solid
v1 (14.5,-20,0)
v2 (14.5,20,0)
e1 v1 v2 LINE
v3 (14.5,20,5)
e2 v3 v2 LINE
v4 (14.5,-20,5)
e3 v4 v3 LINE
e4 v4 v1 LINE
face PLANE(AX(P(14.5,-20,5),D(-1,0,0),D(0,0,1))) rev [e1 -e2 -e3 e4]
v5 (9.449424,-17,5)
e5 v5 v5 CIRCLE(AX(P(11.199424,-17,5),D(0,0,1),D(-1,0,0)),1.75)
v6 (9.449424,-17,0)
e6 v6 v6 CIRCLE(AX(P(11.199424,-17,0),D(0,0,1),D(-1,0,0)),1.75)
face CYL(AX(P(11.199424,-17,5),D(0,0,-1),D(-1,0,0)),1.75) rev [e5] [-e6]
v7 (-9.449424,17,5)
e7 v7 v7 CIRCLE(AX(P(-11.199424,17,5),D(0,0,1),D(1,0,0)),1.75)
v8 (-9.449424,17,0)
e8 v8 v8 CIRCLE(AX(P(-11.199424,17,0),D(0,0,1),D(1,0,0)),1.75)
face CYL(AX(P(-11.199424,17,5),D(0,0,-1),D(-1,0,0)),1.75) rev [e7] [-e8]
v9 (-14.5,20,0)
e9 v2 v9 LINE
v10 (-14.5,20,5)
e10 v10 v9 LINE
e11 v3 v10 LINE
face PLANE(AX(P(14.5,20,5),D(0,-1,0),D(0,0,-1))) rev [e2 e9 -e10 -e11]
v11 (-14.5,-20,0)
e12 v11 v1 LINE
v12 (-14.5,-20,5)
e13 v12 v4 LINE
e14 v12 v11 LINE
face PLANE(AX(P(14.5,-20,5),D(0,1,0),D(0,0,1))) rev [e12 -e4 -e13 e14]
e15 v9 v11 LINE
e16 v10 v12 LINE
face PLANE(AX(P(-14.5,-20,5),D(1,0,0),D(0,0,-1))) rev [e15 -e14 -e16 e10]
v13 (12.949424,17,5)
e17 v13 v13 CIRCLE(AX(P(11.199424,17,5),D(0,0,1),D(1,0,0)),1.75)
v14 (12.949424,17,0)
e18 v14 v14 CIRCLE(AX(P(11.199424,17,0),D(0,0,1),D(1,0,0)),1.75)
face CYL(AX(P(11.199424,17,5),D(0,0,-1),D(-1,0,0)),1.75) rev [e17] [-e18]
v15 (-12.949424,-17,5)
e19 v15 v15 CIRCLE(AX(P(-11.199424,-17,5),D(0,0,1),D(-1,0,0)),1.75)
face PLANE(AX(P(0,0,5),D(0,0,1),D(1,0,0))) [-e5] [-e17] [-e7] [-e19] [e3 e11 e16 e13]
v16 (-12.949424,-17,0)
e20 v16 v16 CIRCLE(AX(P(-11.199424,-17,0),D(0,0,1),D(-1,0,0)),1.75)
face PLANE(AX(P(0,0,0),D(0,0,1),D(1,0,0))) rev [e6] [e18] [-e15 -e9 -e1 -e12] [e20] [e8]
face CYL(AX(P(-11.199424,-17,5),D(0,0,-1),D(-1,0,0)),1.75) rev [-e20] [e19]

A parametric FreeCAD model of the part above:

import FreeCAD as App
import Part
import Sketcher

V = App.Vector
Q = App.Units.Quantity


def add_polygon(sketch, points):
    """Adds a closed chain of lines whose ends are joined by coincident constraints."""
    first, n = sketch.GeometryCount, len(points)
    for a, b in zip(points, points[1:] + points[:1]):
        sketch.addGeometry(Part.LineSegment(App.Vector(*a, 0), App.Vector(*b, 0)), False)
    for i in range(n):
        sketch.addConstraint(Sketcher.Constraint("Coincident", first + i, 2, first + (i + 1) % n, 1))

doc = App.newDocument("Part")
params = doc.addObject("Spreadsheet::Sheet", "Params")
for row, (alias, value) in enumerate([
    ("sketch1_diameter", "3.5 mm"),
    ("sketch1_width", "29 mm"),
    ("sketch1_height", "40 mm"),
    ("pad1_length", "5 mm"),
], start=1):
    params.set(f"A{row}", alias)
    params.set(f"B{row}", "=" + value)
    params.setAlias(f"B{row}", alias)

body = doc.addObject("PartDesign::Body", "Body")

# Sketch on XY plane
sketch1 = doc.addObject("Sketcher::SketchObject", "Sketch")
body.addObject(sketch1)
sketch1.AttachmentSupport = (doc.XY_Plane, [""])
sketch1.MapMode = "FlatFace"
add_polygon(sketch1, [(-14.5, 20), (-14.5, -20), (14.5, -20), (14.5, 20)])  # lines 0-3
sketch1.addGeometry(Part.Circle(V(-11.2, -17, 0), V(0, 0, 1), 1.8), False)  # 4
sketch1.addGeometry(Part.Circle(V(11.2, -17, 0), V(0, 0, 1), 1.8), False)  # 5
sketch1.addGeometry(Part.Circle(V(-11.2, 17, 0), V(0, 0, 1), 1.8), False)  # 6
sketch1.addGeometry(Part.Circle(V(11.2, 17, 0), V(0, 0, 1), 1.8), False)  # 7
sketch1.addConstraint(Sketcher.Constraint("Vertical", 0))
sketch1.addConstraint(Sketcher.Constraint("Horizontal", 1))
sketch1.addConstraint(Sketcher.Constraint("Vertical", 2))
sketch1.addConstraint(Sketcher.Constraint("Horizontal", 3))
sketch1.addConstraint(Sketcher.Constraint("Equal", 4, 5))
sketch1.addConstraint(Sketcher.Constraint("Equal", 5, 6))
sketch1.addConstraint(Sketcher.Constraint("Equal", 6, 7))
sketch1.addConstraint(Sketcher.Constraint("Symmetric", 5, 3, 6, 3, -1, 1))
sketch1.addConstraint(Sketcher.Constraint("Symmetric", 4, 3, 7, 3, -1, 1))
sketch1.addConstraint(Sketcher.Constraint("Symmetric", 0, 2, 2, 2, -1, 1))
sketch1.addConstraint(Sketcher.Constraint("Symmetric", 4, 3, 5, 3, -2))
sketch1.addConstraint(Sketcher.Constraint("Diameter", 4, Q("3.5 mm")))
sketch1.addConstraint(Sketcher.Constraint("DistanceX", 1, 1, 1, 2, Q("29 mm")))
sketch1.addConstraint(Sketcher.Constraint("DistanceY", 0, 2, 0, 1, Q("40 mm")))
sketch1.addConstraint(Sketcher.Constraint("DistanceY", 4, 3, -1, 1, Q("17 mm")))
sketch1.addConstraint(Sketcher.Constraint("DistanceX", 4, 3, -1, 1, Q("11.199424 mm")))
sketch1.setExpression("Constraints[15]", "Params.sketch1_diameter")
sketch1.setExpression("Constraints[16]", "Params.sketch1_width")
sketch1.setExpression("Constraints[17]", "Params.sketch1_height")
pad1 = doc.addObject("PartDesign::Pad", "Pad")
body.addObject(pad1)
pad1.Profile = sketch1
pad1.setExpression("Length", "Params.pad1_length")

doc.recompute()
